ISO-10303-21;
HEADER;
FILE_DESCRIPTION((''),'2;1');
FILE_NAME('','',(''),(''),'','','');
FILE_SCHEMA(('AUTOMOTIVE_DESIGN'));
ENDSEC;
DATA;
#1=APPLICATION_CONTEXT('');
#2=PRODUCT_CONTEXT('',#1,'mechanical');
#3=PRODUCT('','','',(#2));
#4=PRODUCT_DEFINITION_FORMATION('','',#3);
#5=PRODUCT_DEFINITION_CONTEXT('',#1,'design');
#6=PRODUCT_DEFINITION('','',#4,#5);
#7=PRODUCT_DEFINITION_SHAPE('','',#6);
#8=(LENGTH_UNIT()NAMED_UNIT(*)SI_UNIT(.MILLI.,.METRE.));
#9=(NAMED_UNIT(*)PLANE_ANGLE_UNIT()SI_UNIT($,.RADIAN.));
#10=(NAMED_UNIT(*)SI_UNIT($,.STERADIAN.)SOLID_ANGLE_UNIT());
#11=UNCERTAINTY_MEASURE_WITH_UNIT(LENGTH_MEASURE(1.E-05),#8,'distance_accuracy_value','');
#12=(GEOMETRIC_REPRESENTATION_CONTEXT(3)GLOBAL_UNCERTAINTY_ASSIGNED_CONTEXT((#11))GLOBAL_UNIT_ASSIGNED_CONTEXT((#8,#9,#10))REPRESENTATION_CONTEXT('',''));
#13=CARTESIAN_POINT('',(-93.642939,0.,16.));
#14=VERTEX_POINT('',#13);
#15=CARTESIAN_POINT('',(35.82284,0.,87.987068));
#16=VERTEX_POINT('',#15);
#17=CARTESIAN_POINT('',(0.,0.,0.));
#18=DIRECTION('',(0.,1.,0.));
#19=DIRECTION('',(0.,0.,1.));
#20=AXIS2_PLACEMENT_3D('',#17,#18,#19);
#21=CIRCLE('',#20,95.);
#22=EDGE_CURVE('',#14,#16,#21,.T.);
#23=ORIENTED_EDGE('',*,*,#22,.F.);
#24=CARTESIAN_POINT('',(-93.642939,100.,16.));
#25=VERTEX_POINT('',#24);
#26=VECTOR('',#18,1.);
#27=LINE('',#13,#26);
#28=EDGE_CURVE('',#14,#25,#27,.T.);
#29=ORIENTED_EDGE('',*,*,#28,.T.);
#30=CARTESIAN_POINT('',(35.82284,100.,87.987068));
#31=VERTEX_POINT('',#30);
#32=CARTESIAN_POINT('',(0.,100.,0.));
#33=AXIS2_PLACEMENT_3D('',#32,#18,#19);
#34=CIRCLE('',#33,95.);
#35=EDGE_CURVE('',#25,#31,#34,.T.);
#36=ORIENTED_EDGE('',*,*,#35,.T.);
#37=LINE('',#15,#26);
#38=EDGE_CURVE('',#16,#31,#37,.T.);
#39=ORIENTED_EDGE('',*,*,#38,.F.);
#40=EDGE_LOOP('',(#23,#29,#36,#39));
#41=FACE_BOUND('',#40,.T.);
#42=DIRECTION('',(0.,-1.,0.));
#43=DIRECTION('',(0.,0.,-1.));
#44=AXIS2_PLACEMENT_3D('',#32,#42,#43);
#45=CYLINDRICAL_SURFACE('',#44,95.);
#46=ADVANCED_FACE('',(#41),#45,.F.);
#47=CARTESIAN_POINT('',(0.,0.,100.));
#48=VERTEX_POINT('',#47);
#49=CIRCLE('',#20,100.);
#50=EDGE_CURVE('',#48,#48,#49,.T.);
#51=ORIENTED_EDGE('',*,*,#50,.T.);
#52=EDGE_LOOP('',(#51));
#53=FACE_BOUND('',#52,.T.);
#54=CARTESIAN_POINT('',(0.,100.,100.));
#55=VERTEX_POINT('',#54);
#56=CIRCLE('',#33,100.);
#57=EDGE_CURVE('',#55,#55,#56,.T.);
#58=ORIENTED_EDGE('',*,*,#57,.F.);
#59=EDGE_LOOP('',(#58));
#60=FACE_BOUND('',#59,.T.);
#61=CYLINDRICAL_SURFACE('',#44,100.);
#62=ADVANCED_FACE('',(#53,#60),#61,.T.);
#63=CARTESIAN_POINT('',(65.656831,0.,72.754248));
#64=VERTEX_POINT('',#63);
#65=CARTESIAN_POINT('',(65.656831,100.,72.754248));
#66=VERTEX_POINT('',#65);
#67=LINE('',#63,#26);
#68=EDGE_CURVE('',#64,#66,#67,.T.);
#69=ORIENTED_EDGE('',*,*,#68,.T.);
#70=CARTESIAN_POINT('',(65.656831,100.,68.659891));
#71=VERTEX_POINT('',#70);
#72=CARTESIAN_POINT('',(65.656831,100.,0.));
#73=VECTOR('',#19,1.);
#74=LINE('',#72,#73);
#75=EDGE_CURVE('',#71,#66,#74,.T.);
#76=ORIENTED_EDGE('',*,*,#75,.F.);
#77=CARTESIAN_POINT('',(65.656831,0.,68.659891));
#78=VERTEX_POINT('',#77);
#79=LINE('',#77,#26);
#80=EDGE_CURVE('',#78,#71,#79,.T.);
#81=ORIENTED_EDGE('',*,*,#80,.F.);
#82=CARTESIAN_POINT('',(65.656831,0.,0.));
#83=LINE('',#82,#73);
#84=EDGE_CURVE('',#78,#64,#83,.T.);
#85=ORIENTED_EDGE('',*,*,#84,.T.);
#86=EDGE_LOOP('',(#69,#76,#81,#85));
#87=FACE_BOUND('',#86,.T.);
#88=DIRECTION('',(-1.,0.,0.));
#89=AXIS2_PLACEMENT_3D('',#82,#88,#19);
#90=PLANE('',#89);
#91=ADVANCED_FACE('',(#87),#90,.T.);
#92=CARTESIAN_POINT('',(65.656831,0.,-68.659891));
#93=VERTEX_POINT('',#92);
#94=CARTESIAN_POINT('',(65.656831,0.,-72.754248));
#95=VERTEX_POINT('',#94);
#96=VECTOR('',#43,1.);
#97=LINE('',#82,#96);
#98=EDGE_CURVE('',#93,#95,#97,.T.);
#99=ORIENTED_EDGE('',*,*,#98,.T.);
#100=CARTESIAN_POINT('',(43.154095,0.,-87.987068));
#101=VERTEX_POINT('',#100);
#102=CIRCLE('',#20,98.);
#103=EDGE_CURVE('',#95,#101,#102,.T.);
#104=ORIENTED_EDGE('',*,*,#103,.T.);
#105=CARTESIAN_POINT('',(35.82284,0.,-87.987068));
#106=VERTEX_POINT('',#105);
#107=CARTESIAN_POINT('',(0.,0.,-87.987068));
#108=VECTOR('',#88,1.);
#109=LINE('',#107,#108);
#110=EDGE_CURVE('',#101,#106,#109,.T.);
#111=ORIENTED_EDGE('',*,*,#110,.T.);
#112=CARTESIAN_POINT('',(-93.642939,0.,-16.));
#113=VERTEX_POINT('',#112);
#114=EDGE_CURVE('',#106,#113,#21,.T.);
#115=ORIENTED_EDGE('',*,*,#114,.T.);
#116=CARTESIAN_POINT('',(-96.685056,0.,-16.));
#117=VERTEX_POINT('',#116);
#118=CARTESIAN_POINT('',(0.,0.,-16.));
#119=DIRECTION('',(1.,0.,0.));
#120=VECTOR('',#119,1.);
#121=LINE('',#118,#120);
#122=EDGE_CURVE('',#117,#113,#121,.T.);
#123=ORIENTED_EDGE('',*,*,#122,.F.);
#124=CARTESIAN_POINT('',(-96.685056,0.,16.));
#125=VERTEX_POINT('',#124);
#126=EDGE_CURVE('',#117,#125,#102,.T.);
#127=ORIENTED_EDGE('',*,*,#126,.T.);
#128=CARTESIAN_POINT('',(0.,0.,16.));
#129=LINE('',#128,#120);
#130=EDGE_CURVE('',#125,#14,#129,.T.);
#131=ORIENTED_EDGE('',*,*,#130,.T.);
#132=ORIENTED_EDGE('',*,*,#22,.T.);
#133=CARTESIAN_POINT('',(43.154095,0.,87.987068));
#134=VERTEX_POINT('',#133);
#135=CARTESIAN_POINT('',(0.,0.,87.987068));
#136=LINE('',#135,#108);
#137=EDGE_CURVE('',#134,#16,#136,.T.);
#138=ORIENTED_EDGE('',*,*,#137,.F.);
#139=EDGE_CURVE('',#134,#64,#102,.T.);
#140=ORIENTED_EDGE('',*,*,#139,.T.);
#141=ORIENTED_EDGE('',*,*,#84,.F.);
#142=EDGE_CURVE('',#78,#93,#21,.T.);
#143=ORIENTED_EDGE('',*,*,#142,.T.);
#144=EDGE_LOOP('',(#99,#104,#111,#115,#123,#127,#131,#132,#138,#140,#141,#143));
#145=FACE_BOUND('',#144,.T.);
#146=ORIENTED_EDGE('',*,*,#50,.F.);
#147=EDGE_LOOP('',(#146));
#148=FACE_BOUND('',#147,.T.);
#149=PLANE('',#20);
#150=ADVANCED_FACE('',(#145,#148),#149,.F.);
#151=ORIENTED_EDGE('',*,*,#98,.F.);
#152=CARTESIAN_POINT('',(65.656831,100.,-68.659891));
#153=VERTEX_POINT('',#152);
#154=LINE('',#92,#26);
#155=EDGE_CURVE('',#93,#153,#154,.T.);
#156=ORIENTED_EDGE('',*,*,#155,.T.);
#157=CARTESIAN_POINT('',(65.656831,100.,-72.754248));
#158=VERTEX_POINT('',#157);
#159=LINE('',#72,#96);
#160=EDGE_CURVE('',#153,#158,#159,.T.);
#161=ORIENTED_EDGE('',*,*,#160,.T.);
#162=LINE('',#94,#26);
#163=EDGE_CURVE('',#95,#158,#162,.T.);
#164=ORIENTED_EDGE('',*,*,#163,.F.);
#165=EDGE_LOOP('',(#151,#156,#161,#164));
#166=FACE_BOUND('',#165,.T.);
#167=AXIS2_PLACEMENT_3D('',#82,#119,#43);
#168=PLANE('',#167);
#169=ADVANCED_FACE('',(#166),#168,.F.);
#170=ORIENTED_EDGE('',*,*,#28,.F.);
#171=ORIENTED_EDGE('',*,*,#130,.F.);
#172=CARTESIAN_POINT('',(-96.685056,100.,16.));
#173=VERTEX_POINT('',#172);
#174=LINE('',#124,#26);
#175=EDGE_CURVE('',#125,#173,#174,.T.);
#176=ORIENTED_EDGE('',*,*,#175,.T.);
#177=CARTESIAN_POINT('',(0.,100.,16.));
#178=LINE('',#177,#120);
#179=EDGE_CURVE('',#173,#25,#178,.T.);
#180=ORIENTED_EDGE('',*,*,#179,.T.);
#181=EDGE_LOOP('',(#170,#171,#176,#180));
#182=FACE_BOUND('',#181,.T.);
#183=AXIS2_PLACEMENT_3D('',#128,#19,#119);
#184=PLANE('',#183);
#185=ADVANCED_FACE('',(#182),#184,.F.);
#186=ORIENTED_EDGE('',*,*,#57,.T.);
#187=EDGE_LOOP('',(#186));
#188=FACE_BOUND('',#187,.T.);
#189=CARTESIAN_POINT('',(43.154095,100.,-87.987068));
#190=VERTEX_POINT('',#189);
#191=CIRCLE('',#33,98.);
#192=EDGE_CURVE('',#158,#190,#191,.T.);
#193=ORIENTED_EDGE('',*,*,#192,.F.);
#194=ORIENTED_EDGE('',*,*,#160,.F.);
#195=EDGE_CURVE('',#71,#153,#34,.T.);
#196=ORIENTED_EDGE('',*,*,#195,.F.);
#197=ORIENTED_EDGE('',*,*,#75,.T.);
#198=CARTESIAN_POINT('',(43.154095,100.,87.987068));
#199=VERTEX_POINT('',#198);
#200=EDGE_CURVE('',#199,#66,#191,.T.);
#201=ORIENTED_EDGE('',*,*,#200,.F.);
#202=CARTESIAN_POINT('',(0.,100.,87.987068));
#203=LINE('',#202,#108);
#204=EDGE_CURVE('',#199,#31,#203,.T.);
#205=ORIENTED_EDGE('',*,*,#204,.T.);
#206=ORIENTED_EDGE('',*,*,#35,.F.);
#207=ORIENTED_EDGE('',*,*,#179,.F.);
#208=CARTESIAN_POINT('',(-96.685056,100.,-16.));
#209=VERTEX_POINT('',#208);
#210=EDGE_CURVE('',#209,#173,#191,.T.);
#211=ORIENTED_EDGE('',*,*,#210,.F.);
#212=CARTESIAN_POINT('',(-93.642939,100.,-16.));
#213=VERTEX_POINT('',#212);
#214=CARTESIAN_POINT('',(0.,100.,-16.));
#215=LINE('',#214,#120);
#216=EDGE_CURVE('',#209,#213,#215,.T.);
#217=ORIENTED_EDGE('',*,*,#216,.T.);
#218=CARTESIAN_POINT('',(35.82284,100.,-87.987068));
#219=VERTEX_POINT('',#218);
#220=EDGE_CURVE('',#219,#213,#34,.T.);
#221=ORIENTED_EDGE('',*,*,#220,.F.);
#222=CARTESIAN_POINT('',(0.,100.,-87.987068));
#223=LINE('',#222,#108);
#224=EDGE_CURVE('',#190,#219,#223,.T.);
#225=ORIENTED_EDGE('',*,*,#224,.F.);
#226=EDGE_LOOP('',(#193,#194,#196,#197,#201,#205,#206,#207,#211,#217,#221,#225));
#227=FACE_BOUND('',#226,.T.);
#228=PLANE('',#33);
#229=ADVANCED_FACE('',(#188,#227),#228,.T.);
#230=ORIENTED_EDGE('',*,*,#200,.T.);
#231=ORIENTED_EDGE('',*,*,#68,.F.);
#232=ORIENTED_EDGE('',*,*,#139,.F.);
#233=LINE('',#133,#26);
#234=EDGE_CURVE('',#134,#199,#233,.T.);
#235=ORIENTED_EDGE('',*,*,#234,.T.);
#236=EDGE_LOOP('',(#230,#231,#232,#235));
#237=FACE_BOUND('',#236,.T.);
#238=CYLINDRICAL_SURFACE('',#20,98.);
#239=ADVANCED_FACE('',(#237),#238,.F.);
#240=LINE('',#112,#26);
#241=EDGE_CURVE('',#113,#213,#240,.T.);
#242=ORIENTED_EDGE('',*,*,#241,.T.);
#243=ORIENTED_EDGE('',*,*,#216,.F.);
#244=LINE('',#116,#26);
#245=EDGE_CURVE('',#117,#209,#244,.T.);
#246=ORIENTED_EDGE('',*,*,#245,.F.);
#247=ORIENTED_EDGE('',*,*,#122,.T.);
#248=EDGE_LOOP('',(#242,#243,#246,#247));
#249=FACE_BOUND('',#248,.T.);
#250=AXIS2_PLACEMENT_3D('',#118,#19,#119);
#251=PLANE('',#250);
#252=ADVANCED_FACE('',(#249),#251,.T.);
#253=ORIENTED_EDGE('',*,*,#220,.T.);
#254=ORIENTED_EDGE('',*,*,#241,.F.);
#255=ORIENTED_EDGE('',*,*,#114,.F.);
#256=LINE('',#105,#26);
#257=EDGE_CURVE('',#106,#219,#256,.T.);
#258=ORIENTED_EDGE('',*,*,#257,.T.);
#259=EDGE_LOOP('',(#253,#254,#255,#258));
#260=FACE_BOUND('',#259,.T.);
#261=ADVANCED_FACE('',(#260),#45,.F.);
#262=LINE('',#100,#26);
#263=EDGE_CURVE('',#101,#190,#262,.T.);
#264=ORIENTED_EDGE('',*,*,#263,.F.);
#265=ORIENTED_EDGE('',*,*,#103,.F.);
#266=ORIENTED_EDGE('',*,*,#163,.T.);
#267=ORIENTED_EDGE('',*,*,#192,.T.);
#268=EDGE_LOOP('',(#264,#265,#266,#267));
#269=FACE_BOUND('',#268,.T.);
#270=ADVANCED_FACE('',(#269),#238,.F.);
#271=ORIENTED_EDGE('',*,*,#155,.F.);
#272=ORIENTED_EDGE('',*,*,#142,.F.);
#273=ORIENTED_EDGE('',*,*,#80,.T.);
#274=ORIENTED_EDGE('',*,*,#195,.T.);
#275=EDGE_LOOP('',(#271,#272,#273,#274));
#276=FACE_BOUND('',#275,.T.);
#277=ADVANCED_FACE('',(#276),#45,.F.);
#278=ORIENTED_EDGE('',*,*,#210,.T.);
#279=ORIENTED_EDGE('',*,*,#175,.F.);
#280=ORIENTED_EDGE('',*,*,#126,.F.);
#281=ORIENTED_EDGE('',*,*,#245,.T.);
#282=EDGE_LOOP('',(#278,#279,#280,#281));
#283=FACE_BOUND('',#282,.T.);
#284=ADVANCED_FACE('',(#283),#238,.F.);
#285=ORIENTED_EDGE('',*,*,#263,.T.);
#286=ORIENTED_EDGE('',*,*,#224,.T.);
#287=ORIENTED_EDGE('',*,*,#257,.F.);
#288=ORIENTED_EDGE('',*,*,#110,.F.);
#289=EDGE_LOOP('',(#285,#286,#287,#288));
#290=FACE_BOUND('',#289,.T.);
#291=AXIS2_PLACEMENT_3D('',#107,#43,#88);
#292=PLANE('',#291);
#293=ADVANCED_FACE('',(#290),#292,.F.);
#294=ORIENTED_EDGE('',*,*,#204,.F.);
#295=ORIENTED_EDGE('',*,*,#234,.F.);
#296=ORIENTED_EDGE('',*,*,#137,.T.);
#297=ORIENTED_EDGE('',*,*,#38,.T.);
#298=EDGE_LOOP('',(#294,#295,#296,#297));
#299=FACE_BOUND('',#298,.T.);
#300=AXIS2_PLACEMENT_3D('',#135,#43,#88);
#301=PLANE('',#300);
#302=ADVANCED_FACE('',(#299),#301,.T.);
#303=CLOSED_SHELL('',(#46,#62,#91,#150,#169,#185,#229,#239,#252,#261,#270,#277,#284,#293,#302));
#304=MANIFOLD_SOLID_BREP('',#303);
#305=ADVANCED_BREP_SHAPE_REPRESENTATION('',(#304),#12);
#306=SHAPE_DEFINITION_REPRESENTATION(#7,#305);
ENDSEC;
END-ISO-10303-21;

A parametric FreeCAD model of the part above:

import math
import FreeCAD as App
import Part
import Sketcher

doc = App.newDocument("Part")
body = doc.addObject("PartDesign::Body", "Body")

sketch1 = body.newObject("Sketcher::SketchObject", "Sketch")
sketch1.AttachmentSupport = (doc.getObject("XZ_Plane"), [""])
sketch1.MapMode = "FlatFace"
sketch1.addGeometry([
    Part.Circle(App.Vector(0, 0, 0), App.Vector(0, 0, 1), 100),
    Part.Circle(App.Vector(0, 0, 0), App.Vector(0, 0, 1), 95),
], False)
sketch1.addConstraint([
    Sketcher.Constraint("Coincident", 0, 3, -1, 1),
    Sketcher.Constraint("Coincident", 1, 3, -1, 1),
    Sketcher.Constraint("Diameter", 0, 200.0),
    Sketcher.Constraint("Diameter", 1, 190.0),
])
pad1 = body.newObject("PartDesign::Pad", "Pad")
pad1.Profile = sketch1
pad1.Length = 100
pad1.Reversed = True

sketch2 = body.newObject("Sketcher::SketchObject", "Sketch001")
sketch2.AttachmentSupport = (doc.getObject("XZ_Plane"), [""])
sketch2.MapMode = "FlatFace"
sketch2.AttachmentOffset = App.Placement(App.Vector(0, 0, -100), App.Rotation())
sketch2.addGeometry([
    Part.ArcOfCircle(Part.Circle(App.Vector(0, 0, 0), App.Vector(0, 0, 1), 98), math.radians(-63.87), math.radians(-47.94)),
    Part.LineSegment(App.Vector(43.2, -88, 0), App.Vector(35.8, -88, 0)),
    Part.ArcOfCircle(Part.Circle(App.Vector(0, 0, 0), App.Vector(0, 0, 1), 95), math.radians(-68), math.radians(-46)),
    Part.LineSegment(App.Vector(65.7, -68.7, 0), App.Vector(65.7, -72.8, 0)),
    Part.ArcOfCircle(Part.Circle(App.Vector(0, 0, 0), App.Vector(0, 0, 1), 98), math.radians(47.94), math.radians(63.87)),
    Part.LineSegment(App.Vector(65.7, 72.8, 0), App.Vector(65.7, 68.7, 0)),
    Part.ArcOfCircle(Part.Circle(App.Vector(0, 0, 0), App.Vector(0, 0, 1), 95), math.radians(46), math.radians(68)),
    Part.LineSegment(App.Vector(35.8, 88, 0), App.Vector(43.2, 88, 0)),
    Part.LineSegment(App.Vector(-93.6, -16, 0), App.Vector(-96.7, -16, 0)),
    Part.ArcOfCircle(Part.Circle(App.Vector(0, 0, 0), App.Vector(0, 0, 1), 98), math.radians(170.6), math.radians(189.4)),
    Part.LineSegment(App.Vector(-96.7, 16, 0), App.Vector(-93.6, 16, 0)),
    Part.ArcOfCircle(Part.Circle(App.Vector(0, 0, 0), App.Vector(0, 0, 1), 95), math.radians(170.3), math.radians(189.7)),
], False)
sketch2.addConstraint([
    Sketcher.Constraint("Coincident", 0, 1, 1, 1),
    Sketcher.Constraint("Coincident", 1, 2, 2, 1),
    Sketcher.Constraint("Coincident", 2, 2, 3, 1),
    Sketcher.Constraint("Coincident", 3, 2, 0, 2),
    Sketcher.Constraint("Coincident", 4, 1, 5, 1),
    Sketcher.Constraint("Coincident", 5, 2, 6, 1),
    Sketcher.Constraint("Coincident", 6, 2, 7, 1),
    Sketcher.Constraint("Coincident", 7, 2, 4, 2),
    Sketcher.Constraint("Coincident", 8, 2, 9, 2),
    Sketcher.Constraint("Coincident", 9, 1, 10, 1),
    Sketcher.Constraint("Coincident", 10, 2, 11, 1),
    Sketcher.Constraint("Coincident", 11, 2, 8, 1),
    Sketcher.Constraint("Horizontal", 1),
    Sketcher.Constraint("Vertical", 3),
    Sketcher.Constraint("Vertical", 5),
    Sketcher.Constraint("Horizontal", 7),
    Sketcher.Constraint("Horizontal", 8),
    Sketcher.Constraint("Horizontal", 10),
    Sketcher.Constraint("Coincident", 0, 3, -1, 1),
    Sketcher.Constraint("Coincident", 2, 3, -1, 1),
    Sketcher.Constraint("Coincident", 4, 3, -1, 1),
    Sketcher.Constraint("Coincident", 6, 3, -1, 1),
    Sketcher.Constraint("Coincident", 9, 3, -1, 1),
    Sketcher.Constraint("Coincident", 11, 3, -1, 1),
    Sketcher.Constraint("Equal", 0, 4),
    Sketcher.Constraint("Equal", 2, 6),
    Sketcher.Constraint("Equal", 4, 9),
    Sketcher.Constraint("Equal", 6, 11),
    Sketcher.Constraint("Vertical", 3, 2, 4, 1),
    Sketcher.Constraint("Vertical", 1, 2, 6, 2),
    Sketcher.Constraint("Vertical", 8, 2, 9, 1),
    Sketcher.Constraint("Radius", 0, 98.0),
    Sketcher.Constraint("Radius", 2, 95.0),
    Sketcher.Constraint("DistanceY", 8, 2, -1, 1, 16.0),
    Sketcher.Constraint("DistanceX", 1, 2, 1, 1, 7.331254),
    Sketcher.Constraint("DistanceY", 3, 2, 3, 1, 4.094357),
])
pocket1 = body.newObject("PartDesign::Pocket", "Pocket")
pocket1.Profile = sketch2
pocket1.Type = "ThroughAll"
pocket1.Reversed = True

doc.recompute()
